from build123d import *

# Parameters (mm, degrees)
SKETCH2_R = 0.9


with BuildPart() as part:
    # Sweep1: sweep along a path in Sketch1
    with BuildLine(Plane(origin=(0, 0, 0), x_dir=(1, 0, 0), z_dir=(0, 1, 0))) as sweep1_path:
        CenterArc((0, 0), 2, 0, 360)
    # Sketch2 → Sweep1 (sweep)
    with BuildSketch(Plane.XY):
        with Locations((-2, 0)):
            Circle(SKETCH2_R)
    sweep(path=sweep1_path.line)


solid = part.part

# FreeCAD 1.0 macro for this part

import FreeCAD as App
import Part
import Sketcher
Q = App.Units.Quantity

doc = App.newDocument("Part")
body = doc.addObject("PartDesign::Body", "Body")

# Sketch on XY plane
sketch1 = doc.addObject("Sketcher::SketchObject", "Sketch")
body.addObject(sketch1)
sketch1.AttachmentSupport = (doc.XY_Plane, [""])
sketch1.MapMode = "FlatFace"
sketch1.addGeometry(Part.Circle(App.Vector(-2, 0, 0), App.Vector(0, 0, 1), 0.9), False)
sketch1.addConstraint(Sketcher.Constraint("PointOnObject", 0, 3, -1))
sketch1.addConstraint(Sketcher.Constraint("Diameter", 0, Q("1.8 mm")))
sketch1.addConstraint(Sketcher.Constraint("DistanceX", 0, 3, -1, 1, Q("2 mm")))

# Sketch on XZ plane
sketch2 = doc.addObject("Sketcher::SketchObject", "Sketch001")
body.addObject(sketch2)
sketch2.AttachmentSupport = (doc.XZ_Plane, [""])
sketch2.MapMode = "FlatFace"
sketch2.addGeometry(Part.Circle(App.Vector(0, 0, 0), App.Vector(0, 0, 1), 2), False)
sketch2.addConstraint(Sketcher.Constraint("Coincident", 0, 3, -1, 1))
sketch2.addConstraint(Sketcher.Constraint("Diameter", 0, Q("4 mm")))
doc.recompute()

additivepipe = doc.addObject("PartDesign::AdditivePipe", "AdditivePipe")
body.addObject(additivepipe)
additivepipe.Profile = sketch1
additivepipe.Spine = (sketch2, ["Edge1"])

doc.recompute()
